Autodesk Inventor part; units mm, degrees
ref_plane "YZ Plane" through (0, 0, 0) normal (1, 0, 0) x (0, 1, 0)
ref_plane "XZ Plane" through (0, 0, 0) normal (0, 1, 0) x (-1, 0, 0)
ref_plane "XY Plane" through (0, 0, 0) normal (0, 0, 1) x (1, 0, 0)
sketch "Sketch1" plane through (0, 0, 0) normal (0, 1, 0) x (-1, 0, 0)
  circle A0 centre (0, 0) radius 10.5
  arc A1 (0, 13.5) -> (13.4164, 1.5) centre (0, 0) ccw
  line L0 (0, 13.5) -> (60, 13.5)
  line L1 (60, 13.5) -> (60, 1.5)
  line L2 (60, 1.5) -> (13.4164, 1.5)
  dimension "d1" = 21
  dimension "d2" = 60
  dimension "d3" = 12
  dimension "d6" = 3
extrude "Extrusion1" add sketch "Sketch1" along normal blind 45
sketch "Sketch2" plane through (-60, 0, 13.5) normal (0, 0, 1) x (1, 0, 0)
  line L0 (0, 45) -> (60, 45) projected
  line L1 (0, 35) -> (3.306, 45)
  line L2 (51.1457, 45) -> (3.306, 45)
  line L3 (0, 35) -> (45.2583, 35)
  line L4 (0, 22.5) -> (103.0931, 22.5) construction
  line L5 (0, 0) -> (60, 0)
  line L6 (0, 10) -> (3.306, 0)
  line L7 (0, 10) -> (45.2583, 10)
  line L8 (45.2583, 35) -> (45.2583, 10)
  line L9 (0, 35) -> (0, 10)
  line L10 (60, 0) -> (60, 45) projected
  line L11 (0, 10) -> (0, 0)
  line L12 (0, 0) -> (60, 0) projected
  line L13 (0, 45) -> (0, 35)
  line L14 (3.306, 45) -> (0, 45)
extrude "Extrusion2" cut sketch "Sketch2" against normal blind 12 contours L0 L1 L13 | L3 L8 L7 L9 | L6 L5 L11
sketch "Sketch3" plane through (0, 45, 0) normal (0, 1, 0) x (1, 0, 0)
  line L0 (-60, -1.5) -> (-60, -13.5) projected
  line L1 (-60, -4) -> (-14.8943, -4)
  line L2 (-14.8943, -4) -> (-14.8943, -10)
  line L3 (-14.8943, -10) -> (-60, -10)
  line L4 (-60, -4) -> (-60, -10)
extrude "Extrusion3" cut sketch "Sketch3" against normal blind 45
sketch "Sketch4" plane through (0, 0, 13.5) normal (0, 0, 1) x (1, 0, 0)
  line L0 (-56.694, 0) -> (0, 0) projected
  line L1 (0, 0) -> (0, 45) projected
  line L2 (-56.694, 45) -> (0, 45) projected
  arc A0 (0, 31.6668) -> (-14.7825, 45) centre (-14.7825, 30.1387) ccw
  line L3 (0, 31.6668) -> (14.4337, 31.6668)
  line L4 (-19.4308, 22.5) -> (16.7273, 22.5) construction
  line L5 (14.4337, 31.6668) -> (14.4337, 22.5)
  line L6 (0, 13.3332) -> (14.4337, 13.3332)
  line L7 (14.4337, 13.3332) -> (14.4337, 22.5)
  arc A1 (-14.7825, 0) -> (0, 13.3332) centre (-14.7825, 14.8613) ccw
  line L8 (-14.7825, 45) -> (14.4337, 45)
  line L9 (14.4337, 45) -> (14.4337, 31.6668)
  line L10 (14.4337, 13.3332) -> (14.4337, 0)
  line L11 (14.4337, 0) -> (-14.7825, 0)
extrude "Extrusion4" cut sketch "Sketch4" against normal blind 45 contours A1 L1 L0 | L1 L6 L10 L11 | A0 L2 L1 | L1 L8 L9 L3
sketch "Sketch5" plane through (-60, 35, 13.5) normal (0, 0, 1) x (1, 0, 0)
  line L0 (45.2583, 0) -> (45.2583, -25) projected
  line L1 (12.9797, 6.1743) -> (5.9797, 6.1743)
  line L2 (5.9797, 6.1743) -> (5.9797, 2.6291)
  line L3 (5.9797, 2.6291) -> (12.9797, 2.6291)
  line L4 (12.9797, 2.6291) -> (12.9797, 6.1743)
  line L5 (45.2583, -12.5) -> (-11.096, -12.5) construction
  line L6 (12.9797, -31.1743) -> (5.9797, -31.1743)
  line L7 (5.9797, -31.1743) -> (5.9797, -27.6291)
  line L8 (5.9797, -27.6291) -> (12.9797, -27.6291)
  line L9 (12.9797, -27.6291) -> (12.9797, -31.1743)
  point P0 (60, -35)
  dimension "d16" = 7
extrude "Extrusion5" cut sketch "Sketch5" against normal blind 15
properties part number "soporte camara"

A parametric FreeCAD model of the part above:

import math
import FreeCAD as App
import Part
import Sketcher

doc = App.newDocument("Part")
body = doc.addObject("PartDesign::Body", "Body")

# Sketch on XZ plane
sketch1 = body.newObject("Sketcher::SketchObject", "Sketch")
sketch1.AttachmentSupport = (doc.getObject("XZ_Plane"), [""])
sketch1.MapMode = "FlatFace"
sketch1.addGeometry([
    Part.LineSegment(App.Vector(-60, 14, 0), App.Vector(0, 14, 0)),  # 0
    Part.ArcOfCircle(Part.Circle(App.Vector(0, 0, 0), App.Vector(0, 0, 1), 14), math.radians(174), math.radians(450)),  # 1
    Part.LineSegment(App.Vector(-13, 2, 0), App.Vector(-60, 2, 0)),  # 2
    Part.LineSegment(App.Vector(-60, 2, 0), App.Vector(-60, 14, 0)),  # 3
    Part.Circle(App.Vector(0, 0, 0), App.Vector(0, 0, 1), 10),  # 4
], False)
sketch1.addConstraint([
    Sketcher.Constraint("Tangent", 0, 2, 1, 2),
    Sketcher.Constraint("Coincident", 1, 1, 2, 1),
    Sketcher.Constraint("Coincident", 2, 2, 3, 1),
    Sketcher.Constraint("Coincident", 3, 2, 0, 1),
    Sketcher.Constraint("Horizontal", 0),
    Sketcher.Constraint("Horizontal", 2),
    Sketcher.Constraint("Vertical", 3),
    Sketcher.Constraint("Coincident", 1, 3, -1, 1),
    Sketcher.Constraint("Coincident", 4, 3, -1, 1),
    Sketcher.Constraint("Diameter", 4, 21.0),
    Sketcher.Constraint("DistanceX", 0, 1, 0, 2, 60.0),
    Sketcher.Constraint("DistanceY", 3, 1, 3, 2, 12.0),
    Sketcher.Constraint("Radius", 1, 13.5),
])
pad1 = body.newObject("PartDesign::Pad", "Pad")
pad1.Profile = sketch1
pad1.Length = 45
pad1.Reversed = True

# Sketch on XY plane
sketch2 = body.newObject("Sketcher::SketchObject", "Sketch001")
sketch2.AttachmentSupport = (doc.getObject("XY_Plane"), [""])
sketch2.MapMode = "FlatFace"
sketch2.AttachmentOffset = App.Placement(App.Vector(0, 0, 13.5), App.Rotation())
sketch2.addGeometry([
    Part.LineSegment(App.Vector(-56.7, 45, 0), App.Vector(-60, 45, 0)),  # 0
    Part.LineSegment(App.Vector(-60, 45, 0), App.Vector(-60, 35, 0)),  # 1
    Part.LineSegment(App.Vector(-60, 35, 0), App.Vector(-56.7, 45, 0)),  # 2
    Part.LineSegment(App.Vector(-14.7, 35, 0), App.Vector(-60, 35, 0)),  # 3
    Part.LineSegment(App.Vector(-60, 35, 0), App.Vector(-60, 10, 0)),  # 4
    Part.LineSegment(App.Vector(-60, 10, 0), App.Vector(-14.7, 10, 0)),  # 5
    Part.LineSegment(App.Vector(-14.7, 10, 0), App.Vector(-14.7, 35, 0)),  # 6
    Part.LineSegment(App.Vector(-56.7, 0, 0), App.Vector(-60, 10, 0)),  # 7
    Part.LineSegment(App.Vector(-60, 10, 0), App.Vector(-60, 0, 0)),  # 8
    Part.LineSegment(App.Vector(-60, 0, 0), App.Vector(-56.7, 0, 0)),  # 9
], False)
sketch2.addConstraint([
    Sketcher.Constraint("Coincident", 0, 2, 1, 1),
    Sketcher.Constraint("Coincident", 1, 2, 2, 1),
    Sketcher.Constraint("Coincident", 2, 2, 0, 1),
    Sketcher.Constraint("Coincident", 3, 2, 4, 1),
    Sketcher.Constraint("Coincident", 4, 2, 5, 1),
    Sketcher.Constraint("Coincident", 5, 2, 6, 1),
    Sketcher.Constraint("Coincident", 6, 2, 3, 1),
    Sketcher.Constraint("Coincident", 7, 2, 8, 1),
    Sketcher.Constraint("Coincident", 8, 2, 9, 1),
    Sketcher.Constraint("Coincident", 9, 2, 7, 1),
    Sketcher.Constraint("Horizontal", 0),
    Sketcher.Constraint("Vertical", 1),
    Sketcher.Constraint("Horizontal", 3),
    Sketcher.Constraint("Vertical", 4),
    Sketcher.Constraint("Horizontal", 5),
    Sketcher.Constraint("Vertical", 6),
    Sketcher.Constraint("Vertical", 8),
    Sketcher.Constraint("Horizontal", 9),
    Sketcher.Constraint("Coincident", 3, 2, 1, 2),
    Sketcher.Constraint("Coincident", 7, 2, 4, 2),
    Sketcher.Constraint("PointOnObject", 8, 2, -1),
    Sketcher.Constraint("Vertical", 2, 2, 9, 2),
    Sketcher.Constraint("Equal", 1, 8),
    Sketcher.Constraint("DistanceY", 1, 2, 1, 1, 10.0),
    Sketcher.Constraint("DistanceY", 4, 2, 4, 1, 25.0),
    Sketcher.Constraint("DistanceX", 0, 2, -1, 1, 60.0),
    Sketcher.Constraint("DistanceX", 0, 2, 0, 1, 3.306),
    Sketcher.Constraint("DistanceX", 3, 2, 3, 1, 45.2583),
])
pocket1 = body.newObject("PartDesign::Pocket", "Pocket")
pocket1.Profile = sketch2
pocket1.Length = 12

# Sketch on XZ plane
sketch3 = body.newObject("Sketcher::SketchObject", "Sketch002")
sketch3.AttachmentSupport = (doc.getObject("XZ_Plane"), [""])
sketch3.MapMode = "FlatFace"
sketch3.AttachmentOffset = App.Placement(App.Vector(0, 0, -45), App.Rotation())
sketch3.addGeometry([
    Part.LineSegment(App.Vector(-15, 4, 0), App.Vector(-60, 4, 0)),
    Part.LineSegment(App.Vector(-60, 4, 0), App.Vector(-60, 10, 0)),
    Part.LineSegment(App.Vector(-60, 10, 0), App.Vector(-15, 10, 0)),
    Part.LineSegment(App.Vector(-15, 10, 0), App.Vector(-15, 4, 0)),
], False)
sketch3.addConstraint([
    Sketcher.Constraint("Coincident", 0, 2, 1, 1),
    Sketcher.Constraint("Coincident", 1, 2, 2, 1),
    Sketcher.Constraint("Coincident", 2, 2, 3, 1),
    Sketcher.Constraint("Coincident", 3, 2, 0, 1),
    Sketcher.Constraint("Horizontal", 0),
    Sketcher.Constraint("Vertical", 1),
    Sketcher.Constraint("Horizontal", 2),
    Sketcher.Constraint("Vertical", 3),
    Sketcher.Constraint("DistanceY", 1, 1, 1, 2, 6.0),
    Sketcher.Constraint("DistanceX", 0, 2, -1, 1, 60.0),
    Sketcher.Constraint("DistanceY", -1, 1, 0, 2, 4.0),
    Sketcher.Constraint("DistanceX", 0, 2, 0, 1, 45.1057),
])
pocket2 = body.newObject("PartDesign::Pocket", "Pocket001")
pocket2.Profile = sketch3
pocket2.Length = 45
pocket2.Reversed = True

# Sketch on XY plane
sketch4 = body.newObject("Sketcher::SketchObject", "Sketch003")
sketch4.AttachmentSupport = (doc.getObject("XY_Plane"), [""])
sketch4.MapMode = "FlatFace"
sketch4.AttachmentOffset = App.Placement(App.Vector(0, 0, 13.5), App.Rotation())
sketch4.addGeometry([
    Part.ArcOfCircle(Part.Circle(App.Vector(-15, 15, 0), App.Vector(0, 0, 1), 15), math.radians(-90), math.radians(-6)),  # 0
    Part.LineSegment(App.Vector(-15, 0, 0), App.Vector(14, 0, 0)),  # 1
    Part.LineSegment(App.Vector(14, 0, 0), App.Vector(14, 13, 0)),  # 2
    Part.LineSegment(App.Vector(14, 13, 0), App.Vector(0, 13, 0)),  # 3
    Part.ArcOfCircle(Part.Circle(App.Vector(-15, 30, 0), App.Vector(0, 0, 1), 15), math.radians(6), math.radians(90)),  # 4
    Part.LineSegment(App.Vector(0, 32, 0), App.Vector(14, 32, 0)),  # 5
    Part.LineSegment(App.Vector(14, 32, 0), App.Vector(14, 45, 0)),  # 6
    Part.LineSegment(App.Vector(14, 45, 0), App.Vector(-15, 45, 0)),  # 7
], False)
sketch4.addConstraint([
    Sketcher.Constraint("Tangent", 0, 1, 1, 1),
    Sketcher.Constraint("Coincident", 1, 2, 2, 1),
    Sketcher.Constraint("Coincident", 2, 2, 3, 1),
    Sketcher.Constraint("Coincident", 3, 2, 0, 2),
    Sketcher.Constraint("Coincident", 4, 1, 5, 1),
    Sketcher.Constraint("Coincident", 5, 2, 6, 1),
    Sketcher.Constraint("Coincident", 6, 2, 7, 1),
    Sketcher.Constraint("Tangent", 7, 2, 4, 2),
    Sketcher.Constraint("Horizontal", 1),
    Sketcher.Constraint("Vertical", 2),
    Sketcher.Constraint("Horizontal", 3),
    Sketcher.Constraint("Horizontal", 5),
    Sketcher.Constraint("Vertical", 6),
    Sketcher.Constraint("Horizontal", 7),
    Sketcher.Constraint("Equal", 0, 4),
    Sketcher.Constraint("PointOnObject", 0, 1, -1),
    Sketcher.Constraint("PointOnObject", 3, 2, -2),
    Sketcher.Constraint("PointOnObject", 4, 1, -2),
    Sketcher.Constraint("Vertical", 0, 3, 4, 3),
    Sketcher.Constraint("Vertical", 2, 2, 5, 2),
    Sketcher.Constraint("DistanceY", -1, 1, 6, 2, 45.0),
    Sketcher.Constraint("Radius", 0, 14.8613),
    Sketcher.Constraint("DistanceX", 1, 1, 1, 2, 29.2162),
    Sketcher.Constraint("DistanceX", 3, 2, 3, 1, 14.4337),
])
pocket3 = body.newObject("PartDesign::Pocket", "Pocket002")
pocket3.Profile = sketch4
pocket3.Length = 45

# Sketch on XY plane
sketch5 = body.newObject("Sketcher::SketchObject", "Sketch004")
sketch5.AttachmentSupport = (doc.getObject("XY_Plane"), [""])
sketch5.MapMode = "FlatFace"
sketch5.AttachmentOffset = App.Placement(App.Vector(0, 0, 13.5), App.Rotation())
sketch5.addGeometry([
    Part.LineSegment(App.Vector(-47, 37.6, 0), App.Vector(-47, 41.2, 0)),  # 0
    Part.LineSegment(App.Vector(-47, 41.2, 0), App.Vector(-54, 41.2, 0)),  # 1
    Part.LineSegment(App.Vector(-54, 41.2, 0), App.Vector(-54, 37.6, 0)),  # 2
    Part.LineSegment(App.Vector(-54, 37.6, 0), App.Vector(-47, 37.6, 0)),  # 3
    Part.LineSegment(App.Vector(-54, 3.8, 0), App.Vector(-47, 3.8, 0)),  # 4
    Part.LineSegment(App.Vector(-47, 3.8, 0), App.Vector(-47, 7.4, 0)),  # 5
    Part.LineSegment(App.Vector(-47, 7.4, 0), App.Vector(-54, 7.4, 0)),  # 6
    Part.LineSegment(App.Vector(-54, 7.4, 0), App.Vector(-54, 3.8, 0)),  # 7
], False)
sketch5.addConstraint([
    Sketcher.Constraint("Coincident", 0, 2, 1, 1),
    Sketcher.Constraint("Coincident", 1, 2, 2, 1),
    Sketcher.Constraint("Coincident", 2, 2, 3, 1),
    Sketcher.Constraint("Coincident", 3, 2, 0, 1),
    Sketcher.Constraint("Coincident", 4, 2, 5, 1),
    Sketcher.Constraint("Coincident", 5, 2, 6, 1),
    Sketcher.Constraint("Coincident", 6, 2, 7, 1),
    Sketcher.Constraint("Coincident", 7, 2, 4, 1),
    Sketcher.Constraint("Vertical", 0),
    Sketcher.Constraint("Horizontal", 1),
    Sketcher.Constraint("Vertical", 2),
    Sketcher.Constraint("Horizontal", 3),
    Sketcher.Constraint("Horizontal", 4),
    Sketcher.Constraint("Vertical", 5),
    Sketcher.Constraint("Horizontal", 6),
    Sketcher.Constraint("Vertical", 7),
    Sketcher.Constraint("Vertical", 3, 2, 4, 2),
    Sketcher.Constraint("Vertical", 2, 2, 6, 2),
    Sketcher.Constraint("Equal", 2, 5),
    Sketcher.Constraint("DistanceX", 1, 2, 1, 1, 7.0),
    Sketcher.Constraint("DistanceY", 0, 1, 0, 2, 3.5452),
    Sketcher.Constraint("DistanceY", -1, 1, 2, 2, 37.629),
    Sketcher.Constraint("DistanceY", -1, 1, 5, 2, 7.371),
    Sketcher.Constraint("DistanceX", 0, 2, -1, 1, 47.0203),
])
pocket4 = body.newObject("PartDesign::Pocket", "Pocket003")
pocket4.Profile = sketch5
pocket4.Length = 15

doc.recompute()
